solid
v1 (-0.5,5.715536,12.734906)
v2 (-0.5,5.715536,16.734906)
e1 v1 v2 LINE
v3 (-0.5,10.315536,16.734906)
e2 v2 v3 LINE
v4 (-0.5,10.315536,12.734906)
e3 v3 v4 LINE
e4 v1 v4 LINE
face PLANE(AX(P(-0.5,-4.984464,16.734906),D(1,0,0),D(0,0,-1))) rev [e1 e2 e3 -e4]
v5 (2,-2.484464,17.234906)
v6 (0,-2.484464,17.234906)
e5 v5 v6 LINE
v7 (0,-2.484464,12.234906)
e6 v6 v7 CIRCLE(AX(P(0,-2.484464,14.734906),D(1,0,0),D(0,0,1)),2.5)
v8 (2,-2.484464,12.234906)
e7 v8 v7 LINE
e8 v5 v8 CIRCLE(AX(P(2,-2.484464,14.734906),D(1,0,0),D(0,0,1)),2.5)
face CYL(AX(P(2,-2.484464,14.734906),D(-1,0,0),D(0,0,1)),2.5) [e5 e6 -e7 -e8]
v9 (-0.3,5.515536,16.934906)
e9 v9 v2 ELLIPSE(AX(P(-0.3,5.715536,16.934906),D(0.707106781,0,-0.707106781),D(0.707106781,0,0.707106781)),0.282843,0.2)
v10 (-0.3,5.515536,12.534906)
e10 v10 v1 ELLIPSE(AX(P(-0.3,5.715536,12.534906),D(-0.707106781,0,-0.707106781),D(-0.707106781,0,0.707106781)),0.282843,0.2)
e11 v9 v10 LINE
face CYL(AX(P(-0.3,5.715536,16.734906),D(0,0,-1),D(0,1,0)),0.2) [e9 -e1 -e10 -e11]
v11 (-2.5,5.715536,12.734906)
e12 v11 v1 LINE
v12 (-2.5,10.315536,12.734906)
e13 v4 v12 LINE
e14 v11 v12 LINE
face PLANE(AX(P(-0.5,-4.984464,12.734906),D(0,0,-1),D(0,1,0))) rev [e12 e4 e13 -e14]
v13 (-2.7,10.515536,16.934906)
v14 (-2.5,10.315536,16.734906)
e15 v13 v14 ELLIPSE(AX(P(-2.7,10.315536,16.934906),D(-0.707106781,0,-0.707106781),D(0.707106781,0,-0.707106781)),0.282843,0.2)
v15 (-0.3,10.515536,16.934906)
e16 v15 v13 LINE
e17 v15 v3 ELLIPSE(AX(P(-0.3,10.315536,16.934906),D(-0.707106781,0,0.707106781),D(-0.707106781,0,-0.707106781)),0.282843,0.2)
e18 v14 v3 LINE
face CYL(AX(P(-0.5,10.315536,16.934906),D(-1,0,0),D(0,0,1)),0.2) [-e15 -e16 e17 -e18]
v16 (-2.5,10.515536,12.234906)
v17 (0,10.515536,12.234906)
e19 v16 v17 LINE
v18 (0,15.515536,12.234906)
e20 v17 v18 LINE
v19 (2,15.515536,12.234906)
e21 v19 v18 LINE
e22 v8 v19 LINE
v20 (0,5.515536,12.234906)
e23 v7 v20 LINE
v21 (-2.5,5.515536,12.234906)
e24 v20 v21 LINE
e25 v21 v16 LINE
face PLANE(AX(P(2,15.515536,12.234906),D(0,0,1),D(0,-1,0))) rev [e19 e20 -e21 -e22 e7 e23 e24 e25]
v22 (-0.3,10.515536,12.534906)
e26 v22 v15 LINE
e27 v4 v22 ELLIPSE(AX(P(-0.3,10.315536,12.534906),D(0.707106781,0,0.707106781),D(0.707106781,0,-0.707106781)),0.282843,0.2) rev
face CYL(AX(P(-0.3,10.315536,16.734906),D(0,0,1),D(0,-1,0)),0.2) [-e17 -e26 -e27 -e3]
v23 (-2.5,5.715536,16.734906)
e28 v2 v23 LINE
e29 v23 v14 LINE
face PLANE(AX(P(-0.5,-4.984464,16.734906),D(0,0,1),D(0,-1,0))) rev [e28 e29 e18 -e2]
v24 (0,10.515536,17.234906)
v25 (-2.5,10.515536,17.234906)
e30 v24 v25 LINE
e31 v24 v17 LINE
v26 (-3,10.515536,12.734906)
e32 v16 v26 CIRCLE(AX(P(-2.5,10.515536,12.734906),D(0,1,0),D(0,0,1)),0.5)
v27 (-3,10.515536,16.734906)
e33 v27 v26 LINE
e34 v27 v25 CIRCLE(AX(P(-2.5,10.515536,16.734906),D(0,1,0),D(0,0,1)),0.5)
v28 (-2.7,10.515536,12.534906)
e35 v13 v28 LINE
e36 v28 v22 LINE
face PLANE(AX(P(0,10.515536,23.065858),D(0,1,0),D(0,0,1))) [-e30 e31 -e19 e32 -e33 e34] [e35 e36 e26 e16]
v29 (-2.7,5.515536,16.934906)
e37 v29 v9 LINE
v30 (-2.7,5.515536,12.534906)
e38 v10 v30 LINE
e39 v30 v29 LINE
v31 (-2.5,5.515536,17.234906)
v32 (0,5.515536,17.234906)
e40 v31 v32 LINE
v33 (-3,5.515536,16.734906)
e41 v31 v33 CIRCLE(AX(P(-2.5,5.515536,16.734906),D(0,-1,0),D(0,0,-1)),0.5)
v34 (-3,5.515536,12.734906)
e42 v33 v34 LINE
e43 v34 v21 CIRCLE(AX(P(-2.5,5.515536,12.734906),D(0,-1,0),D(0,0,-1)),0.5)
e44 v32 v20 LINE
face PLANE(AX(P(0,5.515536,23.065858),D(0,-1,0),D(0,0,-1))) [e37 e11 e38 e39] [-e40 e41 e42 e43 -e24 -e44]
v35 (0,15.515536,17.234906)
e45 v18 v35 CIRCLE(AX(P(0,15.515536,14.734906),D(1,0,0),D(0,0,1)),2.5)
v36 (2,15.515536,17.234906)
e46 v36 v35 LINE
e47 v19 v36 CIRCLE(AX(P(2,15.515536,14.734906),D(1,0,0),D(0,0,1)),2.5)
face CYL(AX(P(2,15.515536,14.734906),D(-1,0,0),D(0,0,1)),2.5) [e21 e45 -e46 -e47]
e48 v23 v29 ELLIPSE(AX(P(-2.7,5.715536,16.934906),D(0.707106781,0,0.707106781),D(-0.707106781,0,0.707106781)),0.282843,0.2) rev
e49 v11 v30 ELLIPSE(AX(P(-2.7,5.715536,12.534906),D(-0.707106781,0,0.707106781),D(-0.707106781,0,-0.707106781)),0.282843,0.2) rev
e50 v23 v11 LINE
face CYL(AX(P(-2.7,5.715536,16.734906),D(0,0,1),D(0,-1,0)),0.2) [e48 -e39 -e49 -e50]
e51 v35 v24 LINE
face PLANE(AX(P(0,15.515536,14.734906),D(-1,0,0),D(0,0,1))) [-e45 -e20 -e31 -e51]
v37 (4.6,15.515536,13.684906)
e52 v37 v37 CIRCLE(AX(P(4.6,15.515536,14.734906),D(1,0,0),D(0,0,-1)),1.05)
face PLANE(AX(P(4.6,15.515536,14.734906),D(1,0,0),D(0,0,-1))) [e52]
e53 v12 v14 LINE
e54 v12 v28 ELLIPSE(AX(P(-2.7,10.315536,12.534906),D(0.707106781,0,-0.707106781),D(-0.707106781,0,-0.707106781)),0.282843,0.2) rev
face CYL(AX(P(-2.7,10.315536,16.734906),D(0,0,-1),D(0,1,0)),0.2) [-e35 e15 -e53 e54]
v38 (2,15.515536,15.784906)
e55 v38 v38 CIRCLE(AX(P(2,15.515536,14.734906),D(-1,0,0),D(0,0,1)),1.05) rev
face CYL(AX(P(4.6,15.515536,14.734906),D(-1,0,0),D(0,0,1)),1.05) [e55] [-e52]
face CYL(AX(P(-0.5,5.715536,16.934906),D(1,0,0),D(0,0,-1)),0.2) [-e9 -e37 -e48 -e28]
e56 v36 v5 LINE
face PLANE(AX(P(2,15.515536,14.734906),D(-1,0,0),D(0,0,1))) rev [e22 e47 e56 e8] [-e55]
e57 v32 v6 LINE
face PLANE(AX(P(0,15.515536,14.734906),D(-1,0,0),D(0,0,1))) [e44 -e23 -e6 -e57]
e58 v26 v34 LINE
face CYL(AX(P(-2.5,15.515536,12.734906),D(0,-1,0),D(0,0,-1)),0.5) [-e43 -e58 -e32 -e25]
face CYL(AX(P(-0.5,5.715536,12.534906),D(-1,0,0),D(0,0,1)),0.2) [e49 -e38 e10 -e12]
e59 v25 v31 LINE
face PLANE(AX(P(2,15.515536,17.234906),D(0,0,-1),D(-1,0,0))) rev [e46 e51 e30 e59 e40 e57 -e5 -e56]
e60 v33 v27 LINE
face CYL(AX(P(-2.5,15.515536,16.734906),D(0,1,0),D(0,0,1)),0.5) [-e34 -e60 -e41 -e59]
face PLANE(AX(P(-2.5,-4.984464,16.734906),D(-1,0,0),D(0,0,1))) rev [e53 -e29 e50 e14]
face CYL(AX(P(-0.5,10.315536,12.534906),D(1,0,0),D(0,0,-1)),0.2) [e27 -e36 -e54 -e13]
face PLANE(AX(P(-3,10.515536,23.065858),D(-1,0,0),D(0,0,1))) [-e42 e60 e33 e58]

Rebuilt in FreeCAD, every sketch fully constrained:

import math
import FreeCAD as App
import Part
import Sketcher
Q = App.Units.Quantity


def edges_at(feature, points):
    """Names of the edges that pass closest to the given points."""
    edges = feature.Shape.Edges
    near = lambda p: min(range(len(edges)), key=lambda i: edges[i].distToShape(Part.Vertex(*p))[0])
    return sorted({f"Edge{near(p) + 1}" for p in points})

doc = App.newDocument("Part")
params = doc.addObject("Spreadsheet::Sheet", "Params")
for row, (alias, value) in enumerate([
    ("sketch1_radius", "2.5 mm"),
    ("sketch1_width", "18 mm"),
    ("pad1_length", "2 mm"),
    ("sketch2_diameter", "2.1 mm"),
    ("pad2_length", "2.6 mm"),
    ("sketch3_width", "3 mm"),
    ("sketch3_height", "5 mm"),
    ("pad3_length", "5 mm"),
    ("sketch4_width", "2 mm"),
    ("sketch4_height", "4 mm"),
    ("fillet_radius", "0.5 mm"),
    ("fillet2_radius", "0.2 mm"),
], start=1):
    params.set(f"A{row}", alias)
    params.set(f"B{row}", "=" + value)
    params.setAlias(f"B{row}", alias)

body = doc.addObject("PartDesign::Body", "Body")

# Sketch on YZ plane
sketch1 = body.newObject("Sketcher::SketchObject", "Sketch")
sketch1.AttachmentSupport = (doc.getObject("YZ_Plane"), [""])
sketch1.MapMode = "FlatFace"
sketch1.addGeometry(Part.LineSegment(App.Vector(15.5, 17.2, 0), App.Vector(-2.5, 17.2, 0)), False)
sketch1.addGeometry(Part.ArcOfCircle(Part.Circle(App.Vector(-2.5, 14.7, 0), App.Vector(0, 0, 1), 2.5), math.radians(90), math.radians(270)), False)
sketch1.addGeometry(Part.LineSegment(App.Vector(-2.5, 12.2, 0), App.Vector(15.5, 12.2, 0)), False)
sketch1.addGeometry(Part.ArcOfCircle(Part.Circle(App.Vector(15.5, 14.7, 0), App.Vector(0, 0, 1), 2.5), math.radians(-90), math.radians(90)), False)
sketch1.addConstraint(Sketcher.Constraint("Tangent", 0, 2, 1, 1))
sketch1.addConstraint(Sketcher.Constraint("Tangent", 1, 2, 2, 1))
sketch1.addConstraint(Sketcher.Constraint("Tangent", 2, 2, 3, 1))
sketch1.addConstraint(Sketcher.Constraint("Tangent", 3, 2, 0, 1))
sketch1.addConstraint(Sketcher.Constraint("Horizontal", 0))
sketch1.addConstraint(Sketcher.Constraint("Horizontal", 2))
sketch1.addConstraint(Sketcher.Constraint("Radius", 1, Q("2.5 mm")))
sketch1.addConstraint(Sketcher.Constraint("DistanceX", 0, 2, 0, 1, Q("18 mm")))
sketch1.addConstraint(Sketcher.Constraint("DistanceX", 1, 3, -1, 1, Q("2.484464 mm")))
sketch1.addConstraint(Sketcher.Constraint("DistanceY", -1, 1, 1, 3, Q("14.734906 mm")))
sketch1.setExpression("Constraints[6]", "Params.sketch1_radius")
sketch1.setExpression("Constraints[7]", "Params.sketch1_width")
pad1 = body.newObject("PartDesign::Pad", "Pad")
pad1.Profile = sketch1
pad1.setExpression("Length", "Params.pad1_length")

# Sketch on YZ plane
sketch2 = body.newObject("Sketcher::SketchObject", "Sketch001")
sketch2.AttachmentSupport = (doc.getObject("YZ_Plane"), [""])
sketch2.MapMode = "FlatFace"
sketch2.AttachmentOffset = App.Placement(App.Vector(0, 0, 2), App.Rotation())
sketch2.addGeometry(Part.Circle(App.Vector(15.5, 14.7, 0), App.Vector(0, 0, 1), 1.1), False)
sketch2.addConstraint(Sketcher.Constraint("Diameter", 0, Q("2.1 mm")))
sketch2.addConstraint(Sketcher.Constraint("DistanceX", -1, 1, 0, 3, Q("15.515536 mm")))
sketch2.addConstraint(Sketcher.Constraint("DistanceY", -1, 1, 0, 3, Q("14.734906 mm")))
sketch2.setExpression("Constraints[0]", "Params.sketch2_diameter")
pad2 = body.newObject("PartDesign::Pad", "Pad001")
pad2.Profile = sketch2
pad2.setExpression("Length", "Params.pad2_length")

# Sketch on XY plane
sketch3 = body.newObject("Sketcher::SketchObject", "Sketch002")
sketch3.AttachmentSupport = (doc.getObject("XY_Plane"), [""])
sketch3.MapMode = "FlatFace"
sketch3.AttachmentOffset = App.Placement(App.Vector(0, 0, 12.234906), App.Rotation())
sketch3.addGeometry(Part.LineSegment(App.Vector(0, 10.5, 0), App.Vector(0, 5.5, 0)), False)
sketch3.addGeometry(Part.LineSegment(App.Vector(0, 5.5, 0), App.Vector(-3, 5.5, 0)), False)
sketch3.addGeometry(Part.LineSegment(App.Vector(-3, 5.5, 0), App.Vector(-3, 10.5, 0)), False)
sketch3.addGeometry(Part.LineSegment(App.Vector(-3, 10.5, 0), App.Vector(0, 10.5, 0)), False)
sketch3.addConstraint(Sketcher.Constraint("Coincident", 0, 2, 1, 1))
sketch3.addConstraint(Sketcher.Constraint("Coincident", 1, 2, 2, 1))
sketch3.addConstraint(Sketcher.Constraint("Coincident", 2, 2, 3, 1))
sketch3.addConstraint(Sketcher.Constraint("Coincident", 3, 2, 0, 1))
sketch3.addConstraint(Sketcher.Constraint("Vertical", 0))
sketch3.addConstraint(Sketcher.Constraint("Horizontal", 1))
sketch3.addConstraint(Sketcher.Constraint("Vertical", 2))
sketch3.addConstraint(Sketcher.Constraint("Horizontal", 3))
sketch3.addConstraint(Sketcher.Constraint("PointOnObject", 0, 2, -2))
sketch3.addConstraint(Sketcher.Constraint("DistanceX", 1, 2, 1, 1, Q("3 mm")))
sketch3.addConstraint(Sketcher.Constraint("DistanceY", 0, 2, 0, 1, Q("5 mm")))
sketch3.addConstraint(Sketcher.Constraint("DistanceY", -1, 1, 0, 2, Q("5.515536 mm")))
sketch3.setExpression("Constraints[9]", "Params.sketch3_width")
sketch3.setExpression("Constraints[10]", "Params.sketch3_height")
pad3 = body.newObject("PartDesign::Pad", "Pad002")
pad3.Profile = sketch3
pad3.setExpression("Length", "Params.pad3_length")

# Sketch on XZ plane
sketch4 = body.newObject("Sketcher::SketchObject", "Sketch003")
sketch4.AttachmentSupport = (doc.getObject("XZ_Plane"), [""])
sketch4.MapMode = "FlatFace"
sketch4.AttachmentOffset = App.Placement(App.Vector(0, 0, -10.515536), App.Rotation())
sketch4.addGeometry(Part.LineSegment(App.Vector(-2.5, 12.7, 0), App.Vector(-2.5, 16.7, 0)), False)
sketch4.addGeometry(Part.LineSegment(App.Vector(-2.5, 16.7, 0), App.Vector(-0.5, 16.7, 0)), False)
sketch4.addGeometry(Part.LineSegment(App.Vector(-0.5, 16.7, 0), App.Vector(-0.5, 12.7, 0)), False)
sketch4.addGeometry(Part.LineSegment(App.Vector(-0.5, 12.7, 0), App.Vector(-2.5, 12.7, 0)), False)
sketch4.addConstraint(Sketcher.Constraint("Coincident", 0, 2, 1, 1))
sketch4.addConstraint(Sketcher.Constraint("Coincident", 1, 2, 2, 1))
sketch4.addConstraint(Sketcher.Constraint("Coincident", 2, 2, 3, 1))
sketch4.addConstraint(Sketcher.Constraint("Coincident", 3, 2, 0, 1))
sketch4.addConstraint(Sketcher.Constraint("Vertical", 0))
sketch4.addConstraint(Sketcher.Constraint("Horizontal", 1))
sketch4.addConstraint(Sketcher.Constraint("Vertical", 2))
sketch4.addConstraint(Sketcher.Constraint("Horizontal", 3))
sketch4.addConstraint(Sketcher.Constraint("DistanceX", 1, 1, 1, 2, Q("2 mm")))
sketch4.addConstraint(Sketcher.Constraint("DistanceY", 0, 1, 0, 2, Q("4 mm")))
sketch4.addConstraint(Sketcher.Constraint("DistanceX", 0, 2, -1, 1, Q("2.5 mm")))
sketch4.addConstraint(Sketcher.Constraint("DistanceY", -1, 1, 0, 2, Q("16.734906 mm")))
sketch4.setExpression("Constraints[8]", "Params.sketch4_width")
sketch4.setExpression("Constraints[9]", "Params.sketch4_height")
pocket1 = body.newObject("PartDesign::Pocket", "Pocket")
pocket1.Profile = sketch4
pocket1.Type = "ThroughAll"
pocket1.Reversed = True
doc.recompute()

fillet = body.newObject("PartDesign::Fillet", "Fillet")
fillet.Base = (pocket1, edges_at(pocket1, [(-3, 8.016, 12.235), (-3, 8.016, 17.235)]))
fillet.setExpression("Radius", "Params.fillet_radius")
doc.recompute()

fillet2 = body.newObject("PartDesign::Fillet", "Fillet001")
fillet2.Base = (fillet, edges_at(fillet, [
    (-1.5, 5.516, 12.735),
    (-2.5, 5.516, 14.735),
    (-1.5, 5.516, 16.735),
    (-0.5, 5.516, 14.735),
    (-0.5, 10.516, 14.735),
    (-1.5, 10.516, 12.735),
    (-2.5, 10.516, 14.735),
    (-1.5, 10.516, 16.735),
]))
fillet2.setExpression("Radius", "Params.fillet2_radius")

doc.recompute()
